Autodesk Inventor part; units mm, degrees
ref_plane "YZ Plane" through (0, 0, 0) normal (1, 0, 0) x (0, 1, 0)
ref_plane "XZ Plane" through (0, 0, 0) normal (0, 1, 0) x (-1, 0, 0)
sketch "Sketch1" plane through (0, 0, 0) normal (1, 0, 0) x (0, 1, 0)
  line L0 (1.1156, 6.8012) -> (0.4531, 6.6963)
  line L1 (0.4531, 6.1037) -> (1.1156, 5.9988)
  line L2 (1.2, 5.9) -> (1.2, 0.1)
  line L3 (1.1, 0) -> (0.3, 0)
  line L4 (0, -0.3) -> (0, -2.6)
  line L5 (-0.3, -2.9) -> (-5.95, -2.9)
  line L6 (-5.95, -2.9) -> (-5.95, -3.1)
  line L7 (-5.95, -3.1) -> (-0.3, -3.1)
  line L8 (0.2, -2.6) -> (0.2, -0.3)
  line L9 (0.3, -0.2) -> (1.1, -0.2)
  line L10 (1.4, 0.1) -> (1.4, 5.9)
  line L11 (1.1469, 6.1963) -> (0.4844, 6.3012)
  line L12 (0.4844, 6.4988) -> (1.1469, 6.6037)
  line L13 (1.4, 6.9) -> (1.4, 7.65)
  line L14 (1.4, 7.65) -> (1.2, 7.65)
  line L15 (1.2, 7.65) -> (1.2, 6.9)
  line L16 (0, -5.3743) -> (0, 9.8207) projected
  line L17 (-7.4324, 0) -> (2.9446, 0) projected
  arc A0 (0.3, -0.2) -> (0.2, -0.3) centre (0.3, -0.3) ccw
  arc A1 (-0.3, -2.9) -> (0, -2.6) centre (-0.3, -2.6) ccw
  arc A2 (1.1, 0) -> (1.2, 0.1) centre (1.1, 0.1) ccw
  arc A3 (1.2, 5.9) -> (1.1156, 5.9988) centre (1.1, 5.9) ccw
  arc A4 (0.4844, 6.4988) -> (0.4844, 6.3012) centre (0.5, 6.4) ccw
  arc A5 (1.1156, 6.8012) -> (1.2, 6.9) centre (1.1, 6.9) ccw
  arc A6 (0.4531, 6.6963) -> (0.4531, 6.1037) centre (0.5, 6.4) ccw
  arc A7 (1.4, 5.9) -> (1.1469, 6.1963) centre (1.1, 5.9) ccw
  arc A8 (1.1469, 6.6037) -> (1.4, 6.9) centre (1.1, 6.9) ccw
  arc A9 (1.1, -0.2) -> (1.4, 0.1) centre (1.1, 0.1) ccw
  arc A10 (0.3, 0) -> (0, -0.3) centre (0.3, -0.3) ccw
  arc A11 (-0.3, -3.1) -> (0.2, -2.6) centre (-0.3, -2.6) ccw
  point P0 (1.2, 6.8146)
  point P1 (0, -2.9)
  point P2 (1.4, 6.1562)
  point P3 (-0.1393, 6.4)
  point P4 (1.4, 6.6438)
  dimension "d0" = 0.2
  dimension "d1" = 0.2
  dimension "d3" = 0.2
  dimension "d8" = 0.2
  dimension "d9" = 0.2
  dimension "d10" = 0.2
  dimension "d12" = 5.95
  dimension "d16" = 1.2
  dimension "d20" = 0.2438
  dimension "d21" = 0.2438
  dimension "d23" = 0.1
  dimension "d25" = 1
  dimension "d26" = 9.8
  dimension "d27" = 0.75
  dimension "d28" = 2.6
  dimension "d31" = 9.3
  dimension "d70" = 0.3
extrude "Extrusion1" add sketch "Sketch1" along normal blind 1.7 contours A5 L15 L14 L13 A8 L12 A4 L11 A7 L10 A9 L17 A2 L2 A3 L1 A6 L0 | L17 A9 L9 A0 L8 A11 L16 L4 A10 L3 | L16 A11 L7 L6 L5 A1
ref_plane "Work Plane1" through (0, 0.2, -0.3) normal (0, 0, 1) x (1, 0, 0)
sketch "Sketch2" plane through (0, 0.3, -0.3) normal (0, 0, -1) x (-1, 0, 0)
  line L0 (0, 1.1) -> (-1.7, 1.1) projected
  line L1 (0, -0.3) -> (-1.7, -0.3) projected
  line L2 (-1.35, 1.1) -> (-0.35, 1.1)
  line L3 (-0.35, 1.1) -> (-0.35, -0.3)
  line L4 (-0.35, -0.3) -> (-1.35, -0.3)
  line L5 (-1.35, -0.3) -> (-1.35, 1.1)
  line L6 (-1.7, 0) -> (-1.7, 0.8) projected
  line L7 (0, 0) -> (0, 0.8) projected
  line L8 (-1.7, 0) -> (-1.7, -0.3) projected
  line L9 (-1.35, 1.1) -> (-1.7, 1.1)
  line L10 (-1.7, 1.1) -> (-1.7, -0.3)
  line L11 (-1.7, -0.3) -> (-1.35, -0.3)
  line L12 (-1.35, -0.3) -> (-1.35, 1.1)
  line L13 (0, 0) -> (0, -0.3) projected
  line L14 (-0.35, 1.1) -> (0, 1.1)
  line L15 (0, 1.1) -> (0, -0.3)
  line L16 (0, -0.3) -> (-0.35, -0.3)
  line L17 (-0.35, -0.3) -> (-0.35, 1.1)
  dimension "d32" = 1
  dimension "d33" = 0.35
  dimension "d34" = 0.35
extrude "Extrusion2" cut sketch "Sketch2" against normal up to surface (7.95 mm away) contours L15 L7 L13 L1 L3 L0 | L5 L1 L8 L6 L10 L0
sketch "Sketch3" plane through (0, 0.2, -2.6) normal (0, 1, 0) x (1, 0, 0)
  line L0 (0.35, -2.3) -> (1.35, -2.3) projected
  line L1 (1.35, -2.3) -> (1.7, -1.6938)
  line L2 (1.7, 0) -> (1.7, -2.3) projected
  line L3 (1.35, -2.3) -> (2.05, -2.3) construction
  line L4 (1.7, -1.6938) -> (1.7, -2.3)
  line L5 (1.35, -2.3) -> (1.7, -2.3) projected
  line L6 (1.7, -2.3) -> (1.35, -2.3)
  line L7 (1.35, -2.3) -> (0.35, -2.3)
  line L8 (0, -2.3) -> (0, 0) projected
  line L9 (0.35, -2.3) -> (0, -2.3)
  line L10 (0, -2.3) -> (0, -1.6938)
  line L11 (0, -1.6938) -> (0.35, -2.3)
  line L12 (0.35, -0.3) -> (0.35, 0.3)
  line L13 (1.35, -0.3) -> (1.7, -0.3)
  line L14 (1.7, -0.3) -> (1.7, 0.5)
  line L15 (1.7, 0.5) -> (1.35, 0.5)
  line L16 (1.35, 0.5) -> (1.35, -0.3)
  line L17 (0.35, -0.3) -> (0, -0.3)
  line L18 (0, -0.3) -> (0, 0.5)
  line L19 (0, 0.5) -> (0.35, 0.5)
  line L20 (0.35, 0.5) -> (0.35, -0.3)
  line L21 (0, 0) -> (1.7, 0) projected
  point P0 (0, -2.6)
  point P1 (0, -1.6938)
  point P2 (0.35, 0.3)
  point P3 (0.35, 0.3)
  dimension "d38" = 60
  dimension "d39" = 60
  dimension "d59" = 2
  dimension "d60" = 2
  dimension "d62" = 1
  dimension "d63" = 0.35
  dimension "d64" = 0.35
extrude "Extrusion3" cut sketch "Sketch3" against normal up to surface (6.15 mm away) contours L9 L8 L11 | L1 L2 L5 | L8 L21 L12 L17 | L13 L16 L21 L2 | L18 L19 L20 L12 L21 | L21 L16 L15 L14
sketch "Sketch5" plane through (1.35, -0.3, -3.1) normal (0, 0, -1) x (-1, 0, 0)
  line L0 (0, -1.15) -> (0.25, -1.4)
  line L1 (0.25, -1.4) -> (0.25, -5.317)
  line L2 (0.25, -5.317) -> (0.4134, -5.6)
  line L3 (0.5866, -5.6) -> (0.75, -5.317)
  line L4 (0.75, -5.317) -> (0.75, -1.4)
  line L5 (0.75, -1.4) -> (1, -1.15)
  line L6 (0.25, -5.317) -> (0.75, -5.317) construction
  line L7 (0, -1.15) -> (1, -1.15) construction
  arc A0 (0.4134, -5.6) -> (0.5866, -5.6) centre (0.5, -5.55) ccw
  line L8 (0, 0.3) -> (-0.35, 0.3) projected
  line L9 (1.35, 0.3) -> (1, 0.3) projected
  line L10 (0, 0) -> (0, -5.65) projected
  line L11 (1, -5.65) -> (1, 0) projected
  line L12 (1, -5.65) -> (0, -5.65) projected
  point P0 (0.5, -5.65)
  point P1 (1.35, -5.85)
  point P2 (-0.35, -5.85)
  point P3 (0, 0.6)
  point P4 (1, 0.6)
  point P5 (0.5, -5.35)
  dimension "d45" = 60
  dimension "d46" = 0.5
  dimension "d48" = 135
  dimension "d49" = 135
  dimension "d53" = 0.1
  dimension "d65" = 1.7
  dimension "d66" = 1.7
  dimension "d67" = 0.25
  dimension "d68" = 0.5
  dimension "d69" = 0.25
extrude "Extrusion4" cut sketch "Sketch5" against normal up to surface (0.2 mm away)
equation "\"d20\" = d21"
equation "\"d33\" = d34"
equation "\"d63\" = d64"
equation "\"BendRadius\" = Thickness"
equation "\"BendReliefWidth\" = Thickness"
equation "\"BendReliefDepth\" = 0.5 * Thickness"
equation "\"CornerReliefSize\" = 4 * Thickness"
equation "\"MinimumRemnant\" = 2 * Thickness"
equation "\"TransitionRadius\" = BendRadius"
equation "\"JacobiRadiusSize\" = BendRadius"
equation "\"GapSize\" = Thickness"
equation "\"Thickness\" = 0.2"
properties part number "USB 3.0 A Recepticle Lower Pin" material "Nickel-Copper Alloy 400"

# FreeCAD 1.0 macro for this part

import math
import FreeCAD as App
import Part
import Sketcher
from FreeCAD import Vector
Q = App.Units.Quantity


def add_polygon(sketch, points):
    """Adds a closed chain of lines whose ends are joined by coincident constraints."""
    first, n = sketch.GeometryCount, len(points)
    for a, b in zip(points, points[1:] + points[:1]):
        sketch.addGeometry(Part.LineSegment(App.Vector(*a, 0), App.Vector(*b, 0)), False)
    for i in range(n):
        sketch.addConstraint(Sketcher.Constraint("Coincident", first + i, 2, first + (i + 1) % n, 1))

doc = App.newDocument("Part")
params = doc.addObject("Spreadsheet::Sheet", "Params")
for row, (alias, value) in enumerate([
    ("sketch1_radius", "0.1 mm"),
    ("sketch1_radius2", "0.3 mm"),
    ("sketch1_height", "0.75 mm"),
    ("sketch1_height2", "5.8 mm"),
    ("pad1_length", "1.7 mm"),
    ("sketch2_width", "0.35 mm"),
    ("sketch2_height", "1.4 mm"),
    ("pocket1_length", "7.95 mm"),
    ("sketch3_width", "0.35 mm"),
    ("sketch3_height", "0.8 mm"),
    ("pocket2_length", "6.15 mm"),
    ("sketch4_radius", "0.1 mm"),
    ("sketch4_width", "0.5 mm"),
    ("sketch4_height", "4.5 mm"),
    ("pocket3_length", "0.2 mm"),
], start=1):
    params.set(f"A{row}", alias)
    params.set(f"B{row}", "=" + value)
    params.setAlias(f"B{row}", alias)

body = doc.addObject("PartDesign::Body", "Body")

# Sketch on YZ plane
sketch1 = doc.addObject("Sketcher::SketchObject", "Sketch")
body.addObject(sketch1)
sketch1.AttachmentSupport = (doc.YZ_Plane, [""])
sketch1.MapMode = "FlatFace"
sketch1.addGeometry([
    Part.ArcOfCircle(Part.Circle(Vector(1.1, 6.9, 0), Vector(0, 0, 1), 0.1), math.radians(-81), math.radians(0)),  # 0
    Part.LineSegment(Vector(1.12, 6.8, 0), Vector(0.45, 6.7, 0)),  # 1
    Part.ArcOfCircle(Part.Circle(Vector(0.5, 6.4, 0), Vector(0, 0, 1), 0.3), math.radians(99), math.radians(261)),  # 2
    Part.LineSegment(Vector(0.45, 6.1, 0), Vector(1.12, 6, 0)),  # 3
    Part.ArcOfCircle(Part.Circle(Vector(1.1, 5.9, 0), Vector(0, 0, 1), 0.1), math.radians(0), math.radians(81)),  # 4
    Part.LineSegment(Vector(1.2, 5.9, 0), Vector(1.2, 0.1, 0)),  # 5
    Part.ArcOfCircle(Part.Circle(Vector(1.1, 0.1, 0), Vector(0, 0, 1), 0.1), math.radians(-90), math.radians(0)),  # 6
    Part.LineSegment(Vector(1.1, 0, 0), Vector(0.3, 0, 0)),  # 7
    Part.ArcOfCircle(Part.Circle(Vector(0.3, -0.3, 0), Vector(0, 0, 1), 0.3), math.radians(90), math.radians(180)),  # 8
    Part.LineSegment(Vector(0, -0.3, 0), Vector(0, -2.6, 0)),  # 9
    Part.ArcOfCircle(Part.Circle(Vector(-0.3, -2.6, 0), Vector(0, 0, 1), 0.3), math.radians(-90), math.radians(0)),  # 10
    Part.LineSegment(Vector(-0.3, -2.9, 0), Vector(-5.95, -2.9, 0)),  # 11
    Part.LineSegment(Vector(-5.95, -2.9, 0), Vector(-5.95, -3.1, 0)),  # 12
    Part.LineSegment(Vector(-5.95, -3.1, 0), Vector(-0.3, -3.1, 0)),  # 13
    Part.ArcOfCircle(Part.Circle(Vector(-0.3, -2.6, 0), Vector(0, 0, 1), 0.5), math.radians(-90), math.radians(0)),  # 14
    Part.LineSegment(Vector(0.2, -2.6, 0), Vector(0.2, -0.3, 0)),  # 15
    Part.ArcOfCircle(Part.Circle(Vector(0.3, -0.3, 0), Vector(0, 0, 1), 0.1), math.radians(90), math.radians(180)),  # 16
    Part.LineSegment(Vector(0.3, -0.2, 0), Vector(1.1, -0.2, 0)),  # 17
    Part.ArcOfCircle(Part.Circle(Vector(1.1, 0.1, 0), Vector(0, 0, 1), 0.3), math.radians(-90), math.radians(0)),  # 18
    Part.LineSegment(Vector(1.4, 0.1, 0), Vector(1.4, 5.9, 0)),  # 19
    Part.ArcOfCircle(Part.Circle(Vector(1.1, 5.9, 0), Vector(0, 0, 1), 0.3), math.radians(0), math.radians(81)),  # 20
    Part.LineSegment(Vector(1.15, 6.2, 0), Vector(0.48, 6.3, 0)),  # 21
    Part.ArcOfCircle(Part.Circle(Vector(0.5, 6.4, 0), Vector(0, 0, 1), 0.1), math.radians(99), math.radians(261)),  # 22
    Part.LineSegment(Vector(0.48, 6.5, 0), Vector(1.15, 6.6, 0)),  # 23
    Part.ArcOfCircle(Part.Circle(Vector(1.1, 6.9, 0), Vector(0, 0, 1), 0.3), math.radians(-81), math.radians(0)),  # 24
    Part.LineSegment(Vector(1.4, 6.9, 0), Vector(1.4, 7.65, 0)),  # 25
    Part.LineSegment(Vector(1.4, 7.65, 0), Vector(1.2, 7.65, 0)),  # 26
    Part.LineSegment(Vector(1.2, 7.65, 0), Vector(1.2, 6.9, 0)),  # 27
], False)
sketch1.addConstraint([
    Sketcher.Constraint("Tangent", 0, 1, 1, 1),
    Sketcher.Constraint("Tangent", 1, 2, 2, 1),
    Sketcher.Constraint("Tangent", 2, 2, 3, 1),
    Sketcher.Constraint("Tangent", 3, 2, 4, 2),
    Sketcher.Constraint("Tangent", 4, 1, 5, 1),
    Sketcher.Constraint("Tangent", 5, 2, 6, 2),
    Sketcher.Constraint("Tangent", 6, 1, 7, 1),
    Sketcher.Constraint("Tangent", 7, 2, 8, 1),
    Sketcher.Constraint("Tangent", 8, 2, 9, 1),
    Sketcher.Constraint("Tangent", 9, 2, 10, 2),
    Sketcher.Constraint("Tangent", 10, 1, 11, 1),
    Sketcher.Constraint("Coincident", 11, 2, 12, 1),
    Sketcher.Constraint("Coincident", 12, 2, 13, 1),
    Sketcher.Constraint("Tangent", 13, 2, 14, 1),
    Sketcher.Constraint("Tangent", 14, 2, 15, 1),
    Sketcher.Constraint("Tangent", 15, 2, 16, 2),
    Sketcher.Constraint("Tangent", 16, 1, 17, 1),
    Sketcher.Constraint("Tangent", 17, 2, 18, 1),
    Sketcher.Constraint("Tangent", 18, 2, 19, 1),
    Sketcher.Constraint("Tangent", 19, 2, 20, 1),
    Sketcher.Constraint("Tangent", 20, 2, 21, 1),
    Sketcher.Constraint("Tangent", 21, 2, 22, 2),
    Sketcher.Constraint("Tangent", 22, 1, 23, 1),
    Sketcher.Constraint("Tangent", 23, 2, 24, 1),
    Sketcher.Constraint("Tangent", 24, 2, 25, 1),
    Sketcher.Constraint("Coincident", 25, 2, 26, 1),
    Sketcher.Constraint("Coincident", 26, 2, 27, 1),
    Sketcher.Constraint("Tangent", 27, 2, 0, 2),
    Sketcher.Constraint("Vertical", 5),
    Sketcher.Constraint("Horizontal", 7),
    Sketcher.Constraint("Vertical", 9),
    Sketcher.Constraint("Horizontal", 11),
    Sketcher.Constraint("Vertical", 12),
    Sketcher.Constraint("Horizontal", 13),
    Sketcher.Constraint("Vertical", 15),
    Sketcher.Constraint("Horizontal", 17),
    Sketcher.Constraint("Vertical", 19),
    Sketcher.Constraint("Vertical", 25),
    Sketcher.Constraint("Horizontal", 26),
    Sketcher.Constraint("Vertical", 27),
    Sketcher.Constraint("Coincident", 14, 3, 10, 3),
    Sketcher.Constraint("Coincident", 16, 3, 8, 3),
    Sketcher.Constraint("Coincident", 18, 3, 6, 3),
    Sketcher.Constraint("Coincident", 20, 3, 4, 3),
    Sketcher.Constraint("Coincident", 22, 3, 2, 3),
    Sketcher.Constraint("Coincident", 24, 3, 0, 3),
    Sketcher.Constraint("Equal", 0, 4),
    Sketcher.Constraint("Equal", 4, 6),
    Sketcher.Constraint("Equal", 2, 8),
    Sketcher.Constraint("Equal", 8, 10),
    Sketcher.Constraint("Equal", 6, 16),
    Sketcher.Constraint("Equal", 16, 22),
    Sketcher.Constraint("Equal", 20, 24),
    Sketcher.Constraint("PointOnObject", 6, 1, -1),
    Sketcher.Constraint("PointOnObject", 8, 2, -2),
    Sketcher.Constraint("Vertical", 0, 3, 4, 3),
    Sketcher.Constraint("Vertical", 1, 2, 2, 2),
    Sketcher.Constraint("Radius", 0, 0.1),
    Sketcher.Constraint("Radius", 2, 0.3),
    Sketcher.Constraint("DistanceY", 4, 3, 0, 3, 1.0),
    Sketcher.Constraint("DistanceY", 25, 1, 25, 2, 0.75),
    Sketcher.Constraint("DistanceY", 10, 3, -1, 1, 2.6),
    Sketcher.Constraint("DistanceX", -1, 1, 4, 1, 1.2),
    Sketcher.Constraint("DistanceX", 8, 3, 2, 3, 0.2),
    Sketcher.Constraint("DistanceX", 11, 2, -1, 1, 5.95),
    Sketcher.Constraint("DistanceY", 5, 2, 5, 1, 5.8),
])
sketch1.setExpression("Constraints[57]", "Params.sketch1_radius")
sketch1.setExpression("Constraints[58]", "Params.sketch1_radius2")
sketch1.setExpression("Constraints[60]", "Params.sketch1_height")
sketch1.setExpression("Constraints[65]", "Params.sketch1_height2")
pad1 = doc.addObject("PartDesign::Pad", "Pad")
body.addObject(pad1)
pad1.Profile = sketch1
pad1.setExpression("Length", "Params.pad1_length")

# Sketch on XY plane
sketch2 = doc.addObject("Sketcher::SketchObject", "Sketch001")
body.addObject(sketch2)
sketch2.AttachmentSupport = (doc.XY_Plane, [""])
sketch2.MapMode = "FlatFace"
sketch2.AttachmentOffset = App.Placement(Vector(0, 0, -0.3), App.Rotation())
add_polygon(sketch2, [(0, 0), (0, 1.4), (0.35, 1.4), (0.35, 0)])  # lines 0-3
add_polygon(sketch2, [(1.35, 0), (1.35, 1.4), (1.7, 1.4), (1.7, 0)])  # lines 4-7
sketch2.addConstraint([
    Sketcher.Constraint("Vertical", 0),
    Sketcher.Constraint("Horizontal", 1),
    Sketcher.Constraint("Vertical", 2),
    Sketcher.Constraint("Horizontal", 3),
    Sketcher.Constraint("Vertical", 4),
    Sketcher.Constraint("Horizontal", 5),
    Sketcher.Constraint("Vertical", 6),
    Sketcher.Constraint("Horizontal", 7),
    Sketcher.Constraint("Coincident", 3, 2, -1, 1),
    Sketcher.Constraint("PointOnObject", 6, 2, -1),
    Sketcher.Constraint("Horizontal", 1, 2, 4, 2),
    Sketcher.Constraint("Equal", 3, 5),
    Sketcher.Constraint("DistanceX", 1, 2, 4, 2, 1.0),
    Sketcher.Constraint("DistanceX", 1, 1, 1, 2, 0.35),
    Sketcher.Constraint("DistanceY", 0, 1, 0, 2, 1.4),
])
sketch2.setExpression("Constraints[21]", "Params.sketch2_width")
sketch2.setExpression("Constraints[22]", "Params.sketch2_height")
pocket1 = doc.addObject("PartDesign::Pocket", "Pocket")
body.addObject(pocket1)
pocket1.Profile = sketch2
pocket1.setExpression("Length", "Params.pocket1_length")
pocket1.Reversed = True

# Sketch on XZ plane
sketch3 = doc.addObject("Sketcher::SketchObject", "Sketch002")
body.addObject(sketch3)
sketch3.AttachmentSupport = (doc.XZ_Plane, [""])
sketch3.MapMode = "FlatFace"
sketch3.AttachmentOffset = App.Placement(Vector(0, 0, -0.2), App.Rotation())
add_polygon(sketch3, [(0, -0.3), (0.35, -0.3), (0, -0.91)])  # lines 0-2
add_polygon(sketch3, [(1.7, -0.91), (1.35, -0.3), (1.7, -0.3)])  # lines 3-5
add_polygon(sketch3, [(0, -2.3), (0.35, -2.3), (0.35, -3.1), (0, -3.1)])  # lines 6-9
add_polygon(sketch3, [(1.35, -2.3), (1.7, -2.3), (1.7, -3.1), (1.35, -3.1)])  # lines 10-13
sketch3.addConstraint([
    Sketcher.Constraint("Horizontal", 0),
    Sketcher.Constraint("Vertical", 2),
    Sketcher.Constraint("Horizontal", 4),
    Sketcher.Constraint("Vertical", 5),
    Sketcher.Constraint("Horizontal", 6),
    Sketcher.Constraint("Vertical", 7),
    Sketcher.Constraint("Horizontal", 8),
    Sketcher.Constraint("Vertical", 9),
    Sketcher.Constraint("Horizontal", 10),
    Sketcher.Constraint("Vertical", 11),
    Sketcher.Constraint("Horizontal", 12),
    Sketcher.Constraint("Vertical", 13),
    Sketcher.Constraint("PointOnObject", 1, 2, -2),
    Sketcher.Constraint("PointOnObject", 8, 2, -2),
    Sketcher.Constraint("Horizontal", 2, 2, 3, 2),
    Sketcher.Constraint("Horizontal", 1, 2, 5, 2),
    Sketcher.Constraint("Horizontal", 9, 2, 10, 2),
    Sketcher.Constraint("Horizontal", 8, 2, 11, 2),
    Sketcher.Constraint("Vertical", 0, 2, 6, 2),
    Sketcher.Constraint("Vertical", 5, 2, 10, 2),
    Sketcher.Constraint("Vertical", 3, 2, 12, 2),
    Sketcher.Constraint("Equal", 0, 4),
    Sketcher.Constraint("DistanceX", 0, 2, 3, 2, 1.0),
    Sketcher.Constraint("DistanceY", 6, 2, 0, 2, 2.0),
    Sketcher.Constraint("DistanceX", 0, 1, 0, 2, 0.35),
    Sketcher.Constraint("Angle", 1, Q("-120.0007 deg")),
    Sketcher.Constraint("DistanceY", 7, 2, 7, 1, 0.8),
    Sketcher.Constraint("DistanceY", 0, 2, -1, 1, 0.3),
])
sketch3.setExpression("Constraints[38]", "Params.sketch3_width")
sketch3.setExpression("Constraints[40]", "Params.sketch3_height")
pocket2 = doc.addObject("PartDesign::Pocket", "Pocket001")
body.addObject(pocket2)
pocket2.Profile = sketch3
pocket2.setExpression("Length", "Params.pocket2_length")
pocket2.Reversed = True

# Sketch on XY plane
sketch4 = doc.addObject("Sketcher::SketchObject", "Sketch003")
body.addObject(sketch4)
sketch4.AttachmentSupport = (doc.XY_Plane, [""])
sketch4.MapMode = "FlatFace"
sketch4.AttachmentOffset = App.Placement(Vector(0, 0, -3.1), App.Rotation())
sketch4.addGeometry([
    Part.ArcOfCircle(Part.Circle(Vector(0.85, -5.85, 0), Vector(0, 0, 1), 0.1), math.radians(-150), math.radians(-90)),  # 0
    Part.LineSegment(Vector(0.85, -5.95, 0), Vector(0.35, -5.95, 0)),  # 1
    Part.LineSegment(Vector(0.35, -5.95, 0), Vector(0.35, -1.45, 0)),  # 2
    Part.LineSegment(Vector(0.35, -1.45, 0), Vector(0.6, -1.7, 0)),  # 3
    Part.LineSegment(Vector(0.6, -1.7, 0), Vector(0.6, -5.62, 0)),  # 4
    Part.LineSegment(Vector(0.6, -5.62, 0), Vector(0.76, -5.9, 0)),  # 5
    Part.LineSegment(Vector(1.1, -1.7, 0), Vector(1.35, -1.45, 0)),  # 6
    Part.LineSegment(Vector(1.35, -1.45, 0), Vector(1.35, -5.95, 0)),  # 7
    Part.LineSegment(Vector(1.35, -5.95, 0), Vector(0.85, -5.95, 0)),  # 8
    Part.ArcOfCircle(Part.Circle(Vector(0.85, -5.85, 0), Vector(0, 0, 1), 0.1), math.radians(-90), math.radians(-30)),  # 9
    Part.LineSegment(Vector(0.94, -5.9, 0), Vector(1.1, -5.62, 0)),  # 10
    Part.LineSegment(Vector(1.1, -5.62, 0), Vector(1.1, -1.7, 0)),  # 11
], False)
sketch4.addConstraint([
    Sketcher.Constraint("Tangent", 0, 2, 1, 1),
    Sketcher.Constraint("Coincident", 1, 2, 2, 1),
    Sketcher.Constraint("Coincident", 2, 2, 3, 1),
    Sketcher.Constraint("Coincident", 3, 2, 4, 1),
    Sketcher.Constraint("Coincident", 4, 2, 5, 1),
    Sketcher.Constraint("Tangent", 5, 2, 0, 1),
    Sketcher.Constraint("Coincident", 6, 2, 7, 1),
    Sketcher.Constraint("Coincident", 7, 2, 8, 1),
    Sketcher.Constraint("Tangent", 8, 2, 9, 1),
    Sketcher.Constraint("Tangent", 9, 2, 10, 1),
    Sketcher.Constraint("Coincident", 10, 2, 11, 1),
    Sketcher.Constraint("Coincident", 11, 2, 6, 1),
    Sketcher.Constraint("Horizontal", 1),
    Sketcher.Constraint("Vertical", 2),
    Sketcher.Constraint("Vertical", 4),
    Sketcher.Constraint("Vertical", 7),
    Sketcher.Constraint("Horizontal", 8),
    Sketcher.Constraint("Vertical", 11),
    Sketcher.Constraint("Coincident", 9, 3, 0, 3),
    Sketcher.Constraint("Equal", 0, 9),
    Sketcher.Constraint("Perpendicular", 3, 6),
    Sketcher.Constraint("Horizontal", 2, 2, 6, 2),
    Sketcher.Constraint("Horizontal", 5, 2, 9, 2),
    Sketcher.Constraint("Horizontal", 4, 2, 10, 2),
    Sketcher.Constraint("Horizontal", 3, 2, 11, 2),
    Sketcher.Constraint("Equal", 1, 8),
    Sketcher.Constraint("Radius", 0, 0.1),
    Sketcher.Constraint("DistanceX", 1, 2, 1, 1, 0.5),
    Sketcher.Constraint("DistanceY", 3, 2, -1, 1, 1.7),
    Sketcher.Constraint("DistanceX", 3, 2, 11, 2, 0.5),
    Sketcher.Constraint("DistanceY", 2, 1, 2, 2, 4.5),
    Sketcher.Constraint("DistanceX", -1, 1, 3, 2, 0.6),
    Sketcher.Constraint("DistanceY", 5, 2, -1, 1, 5.9),
])
sketch4.setExpression("Constraints[26]", "Params.sketch4_radius")
sketch4.setExpression("Constraints[27]", "Params.sketch4_width")
sketch4.setExpression("Constraints[30]", "Params.sketch4_height")
pocket3 = doc.addObject("PartDesign::Pocket", "Pocket002")
body.addObject(pocket3)
pocket3.Profile = sketch4
pocket3.setExpression("Length", "Params.pocket3_length")
pocket3.Reversed = True

doc.recompute()
